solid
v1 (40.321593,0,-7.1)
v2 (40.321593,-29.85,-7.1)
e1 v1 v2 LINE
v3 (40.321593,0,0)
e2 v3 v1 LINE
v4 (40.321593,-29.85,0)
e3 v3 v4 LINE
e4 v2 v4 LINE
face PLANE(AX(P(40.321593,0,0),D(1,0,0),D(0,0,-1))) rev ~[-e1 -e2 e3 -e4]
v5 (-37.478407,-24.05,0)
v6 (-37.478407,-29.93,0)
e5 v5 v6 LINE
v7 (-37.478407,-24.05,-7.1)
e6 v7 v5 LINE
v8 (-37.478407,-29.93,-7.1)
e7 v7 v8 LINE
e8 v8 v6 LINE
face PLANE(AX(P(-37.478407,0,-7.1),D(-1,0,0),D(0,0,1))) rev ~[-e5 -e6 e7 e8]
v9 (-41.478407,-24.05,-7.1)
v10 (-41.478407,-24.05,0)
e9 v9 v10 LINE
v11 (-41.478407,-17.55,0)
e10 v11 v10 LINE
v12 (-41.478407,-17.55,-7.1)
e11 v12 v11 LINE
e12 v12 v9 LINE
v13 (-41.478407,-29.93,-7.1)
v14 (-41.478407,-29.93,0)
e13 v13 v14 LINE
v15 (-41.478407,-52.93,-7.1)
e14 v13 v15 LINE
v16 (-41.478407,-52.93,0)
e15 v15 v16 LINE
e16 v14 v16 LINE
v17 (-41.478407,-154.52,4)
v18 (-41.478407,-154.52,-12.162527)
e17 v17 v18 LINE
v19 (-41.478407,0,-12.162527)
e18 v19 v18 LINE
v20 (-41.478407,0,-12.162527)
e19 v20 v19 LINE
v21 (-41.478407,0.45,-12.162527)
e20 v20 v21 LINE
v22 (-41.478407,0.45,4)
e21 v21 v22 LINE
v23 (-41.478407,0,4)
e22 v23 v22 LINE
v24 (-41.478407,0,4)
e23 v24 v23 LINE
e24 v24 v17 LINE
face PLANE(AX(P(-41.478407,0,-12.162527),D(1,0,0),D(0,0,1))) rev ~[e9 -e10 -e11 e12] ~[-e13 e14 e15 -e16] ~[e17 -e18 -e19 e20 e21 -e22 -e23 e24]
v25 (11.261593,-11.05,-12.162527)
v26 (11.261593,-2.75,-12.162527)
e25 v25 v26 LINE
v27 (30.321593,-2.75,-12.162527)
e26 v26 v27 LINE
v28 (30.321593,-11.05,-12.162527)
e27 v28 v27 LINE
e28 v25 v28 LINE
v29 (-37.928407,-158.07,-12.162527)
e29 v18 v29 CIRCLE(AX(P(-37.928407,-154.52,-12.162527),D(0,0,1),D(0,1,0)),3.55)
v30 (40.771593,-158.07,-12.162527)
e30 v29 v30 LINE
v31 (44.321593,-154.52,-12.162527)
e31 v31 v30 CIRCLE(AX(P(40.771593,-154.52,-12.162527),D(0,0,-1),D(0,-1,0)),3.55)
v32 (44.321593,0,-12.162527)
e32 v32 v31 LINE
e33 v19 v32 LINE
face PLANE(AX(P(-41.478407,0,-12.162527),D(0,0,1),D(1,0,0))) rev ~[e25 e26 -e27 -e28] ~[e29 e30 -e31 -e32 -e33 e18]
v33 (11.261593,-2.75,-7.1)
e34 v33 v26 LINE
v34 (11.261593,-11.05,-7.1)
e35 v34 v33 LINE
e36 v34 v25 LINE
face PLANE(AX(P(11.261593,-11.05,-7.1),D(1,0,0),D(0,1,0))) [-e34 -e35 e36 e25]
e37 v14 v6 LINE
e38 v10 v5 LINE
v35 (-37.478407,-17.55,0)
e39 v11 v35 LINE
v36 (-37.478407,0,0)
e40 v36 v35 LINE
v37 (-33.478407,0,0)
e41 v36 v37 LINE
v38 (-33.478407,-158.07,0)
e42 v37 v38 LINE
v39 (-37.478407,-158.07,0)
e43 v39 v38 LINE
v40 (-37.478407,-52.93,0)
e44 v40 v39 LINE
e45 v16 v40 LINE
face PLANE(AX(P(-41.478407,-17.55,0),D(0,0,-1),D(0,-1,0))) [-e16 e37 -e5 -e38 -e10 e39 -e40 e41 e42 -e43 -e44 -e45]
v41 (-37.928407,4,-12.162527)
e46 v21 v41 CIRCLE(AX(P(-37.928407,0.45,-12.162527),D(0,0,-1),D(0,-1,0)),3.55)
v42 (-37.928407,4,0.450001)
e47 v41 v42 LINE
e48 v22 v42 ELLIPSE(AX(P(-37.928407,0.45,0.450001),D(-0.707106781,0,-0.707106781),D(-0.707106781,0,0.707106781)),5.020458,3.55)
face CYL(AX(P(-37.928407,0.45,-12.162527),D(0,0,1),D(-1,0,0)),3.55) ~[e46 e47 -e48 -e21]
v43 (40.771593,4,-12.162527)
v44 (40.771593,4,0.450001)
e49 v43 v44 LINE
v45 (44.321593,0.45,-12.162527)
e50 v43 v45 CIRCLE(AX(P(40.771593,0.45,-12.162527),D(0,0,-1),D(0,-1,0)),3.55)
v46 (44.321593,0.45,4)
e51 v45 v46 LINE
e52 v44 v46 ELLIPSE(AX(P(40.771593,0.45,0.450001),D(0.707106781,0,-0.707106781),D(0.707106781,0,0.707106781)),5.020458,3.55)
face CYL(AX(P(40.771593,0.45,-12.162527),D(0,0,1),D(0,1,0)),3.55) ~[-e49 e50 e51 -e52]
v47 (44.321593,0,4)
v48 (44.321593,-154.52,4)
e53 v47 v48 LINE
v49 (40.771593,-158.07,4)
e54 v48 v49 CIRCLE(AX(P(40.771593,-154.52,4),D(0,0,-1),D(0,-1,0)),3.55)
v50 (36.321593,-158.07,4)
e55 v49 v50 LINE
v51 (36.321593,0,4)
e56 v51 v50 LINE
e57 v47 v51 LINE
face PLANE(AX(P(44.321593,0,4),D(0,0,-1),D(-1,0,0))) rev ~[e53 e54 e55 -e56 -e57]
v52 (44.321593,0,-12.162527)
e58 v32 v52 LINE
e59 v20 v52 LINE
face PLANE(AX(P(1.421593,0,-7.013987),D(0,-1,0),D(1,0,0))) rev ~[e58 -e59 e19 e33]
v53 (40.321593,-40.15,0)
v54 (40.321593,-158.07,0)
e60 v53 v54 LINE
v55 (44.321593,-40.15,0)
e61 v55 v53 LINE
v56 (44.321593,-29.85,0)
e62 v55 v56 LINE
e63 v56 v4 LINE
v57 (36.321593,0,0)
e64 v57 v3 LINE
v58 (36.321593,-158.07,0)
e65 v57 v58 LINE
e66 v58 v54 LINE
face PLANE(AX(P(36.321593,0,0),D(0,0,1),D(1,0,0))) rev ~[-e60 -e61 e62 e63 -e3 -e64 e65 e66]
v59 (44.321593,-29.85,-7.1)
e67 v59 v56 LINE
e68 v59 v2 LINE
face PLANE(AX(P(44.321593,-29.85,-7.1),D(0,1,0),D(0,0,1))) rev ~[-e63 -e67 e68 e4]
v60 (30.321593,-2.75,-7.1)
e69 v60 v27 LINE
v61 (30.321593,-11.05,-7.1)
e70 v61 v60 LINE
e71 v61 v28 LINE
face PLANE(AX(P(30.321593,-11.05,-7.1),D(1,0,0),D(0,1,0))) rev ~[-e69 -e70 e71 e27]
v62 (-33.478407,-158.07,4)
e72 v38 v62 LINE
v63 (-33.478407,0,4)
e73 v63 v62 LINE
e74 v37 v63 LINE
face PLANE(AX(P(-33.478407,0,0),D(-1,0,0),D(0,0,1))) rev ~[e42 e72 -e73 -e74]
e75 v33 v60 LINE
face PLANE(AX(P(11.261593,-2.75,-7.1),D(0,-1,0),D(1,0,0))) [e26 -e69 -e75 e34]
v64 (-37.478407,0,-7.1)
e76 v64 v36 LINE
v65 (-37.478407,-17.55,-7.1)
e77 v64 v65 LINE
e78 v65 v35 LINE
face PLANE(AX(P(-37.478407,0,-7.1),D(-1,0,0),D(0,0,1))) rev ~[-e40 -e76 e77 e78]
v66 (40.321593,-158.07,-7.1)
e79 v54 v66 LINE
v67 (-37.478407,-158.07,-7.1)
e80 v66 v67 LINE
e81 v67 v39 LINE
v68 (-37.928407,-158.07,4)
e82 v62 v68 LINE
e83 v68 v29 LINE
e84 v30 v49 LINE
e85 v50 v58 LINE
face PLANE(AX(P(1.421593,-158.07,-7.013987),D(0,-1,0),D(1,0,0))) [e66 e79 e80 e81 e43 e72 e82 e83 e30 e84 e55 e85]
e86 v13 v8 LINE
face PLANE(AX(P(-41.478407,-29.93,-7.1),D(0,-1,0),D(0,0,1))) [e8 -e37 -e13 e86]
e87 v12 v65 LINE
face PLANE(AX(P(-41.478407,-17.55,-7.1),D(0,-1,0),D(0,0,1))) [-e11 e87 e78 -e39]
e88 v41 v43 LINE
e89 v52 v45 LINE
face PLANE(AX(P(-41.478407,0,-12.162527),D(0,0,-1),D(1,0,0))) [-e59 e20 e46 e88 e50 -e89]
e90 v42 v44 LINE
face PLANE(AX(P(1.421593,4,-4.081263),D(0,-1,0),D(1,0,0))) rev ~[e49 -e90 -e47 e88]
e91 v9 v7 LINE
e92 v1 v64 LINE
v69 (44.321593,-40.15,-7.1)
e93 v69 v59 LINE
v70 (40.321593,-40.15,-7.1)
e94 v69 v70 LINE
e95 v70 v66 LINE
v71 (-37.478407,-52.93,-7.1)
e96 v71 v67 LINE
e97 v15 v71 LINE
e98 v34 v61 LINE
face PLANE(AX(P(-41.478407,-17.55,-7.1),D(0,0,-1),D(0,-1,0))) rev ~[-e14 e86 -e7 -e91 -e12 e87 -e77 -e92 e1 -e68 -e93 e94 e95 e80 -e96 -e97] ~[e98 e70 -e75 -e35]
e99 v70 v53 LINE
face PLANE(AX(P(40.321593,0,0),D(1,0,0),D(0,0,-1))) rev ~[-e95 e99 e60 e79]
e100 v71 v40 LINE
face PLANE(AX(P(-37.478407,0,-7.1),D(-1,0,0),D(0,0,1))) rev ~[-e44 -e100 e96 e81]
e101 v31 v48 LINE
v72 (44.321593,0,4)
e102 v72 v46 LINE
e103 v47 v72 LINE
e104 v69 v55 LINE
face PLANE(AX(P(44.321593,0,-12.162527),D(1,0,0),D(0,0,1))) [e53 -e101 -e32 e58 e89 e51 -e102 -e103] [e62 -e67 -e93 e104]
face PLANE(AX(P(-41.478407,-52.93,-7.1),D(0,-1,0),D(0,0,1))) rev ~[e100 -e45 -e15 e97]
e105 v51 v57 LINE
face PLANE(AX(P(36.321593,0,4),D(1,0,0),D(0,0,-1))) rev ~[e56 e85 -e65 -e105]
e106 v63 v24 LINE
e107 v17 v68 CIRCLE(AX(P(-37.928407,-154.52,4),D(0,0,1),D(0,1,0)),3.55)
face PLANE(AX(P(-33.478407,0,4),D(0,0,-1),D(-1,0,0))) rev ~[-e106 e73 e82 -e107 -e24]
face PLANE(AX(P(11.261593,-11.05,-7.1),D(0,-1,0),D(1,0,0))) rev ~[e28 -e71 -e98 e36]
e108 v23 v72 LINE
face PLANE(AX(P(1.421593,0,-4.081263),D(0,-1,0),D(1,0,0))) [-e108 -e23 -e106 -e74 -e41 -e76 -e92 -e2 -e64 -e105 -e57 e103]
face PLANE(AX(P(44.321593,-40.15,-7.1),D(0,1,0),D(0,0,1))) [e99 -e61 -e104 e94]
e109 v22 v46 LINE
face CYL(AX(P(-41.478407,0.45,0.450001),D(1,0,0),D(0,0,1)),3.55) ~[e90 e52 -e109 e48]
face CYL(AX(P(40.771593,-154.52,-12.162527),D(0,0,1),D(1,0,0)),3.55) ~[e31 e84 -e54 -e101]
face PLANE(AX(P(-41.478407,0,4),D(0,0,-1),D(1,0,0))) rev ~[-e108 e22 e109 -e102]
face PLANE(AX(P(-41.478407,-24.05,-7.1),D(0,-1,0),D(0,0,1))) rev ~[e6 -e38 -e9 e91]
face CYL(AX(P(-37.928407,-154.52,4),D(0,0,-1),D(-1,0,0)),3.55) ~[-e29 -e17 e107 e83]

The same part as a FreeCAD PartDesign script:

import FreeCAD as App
import Part
import Sketcher

V = App.Vector


def edges_at(feature, points):
    """Names of the edges that pass closest to the given points."""
    edges = feature.Shape.Edges
    near = lambda p: min(range(len(edges)), key=lambda i: edges[i].distToShape(Part.Vertex(*p))[0])
    return sorted({f"Edge{near(p) + 1}" for p in points})

doc = App.newDocument("Part")
body = doc.addObject("PartDesign::Body", "Body")

# Sketch on XZ plane
sketch1 = body.newObject("Sketcher::SketchObject", "Sketch")
sketch1.AttachmentSupport = (doc.getObject("XZ_Plane"), [""])
sketch1.MapMode = "FlatFace"
sketch1.addGeometry(Part.LineSegment(V(-41.5, 4, 0), V(-41.5, -12.2, 0)), False)
sketch1.addGeometry(Part.LineSegment(V(-41.5, -12.2, 0), V(44.3, -12.2, 0)), False)
sketch1.addGeometry(Part.LineSegment(V(44.3, -12.2, 0), V(44.3, 4, 0)), False)
sketch1.addGeometry(Part.LineSegment(V(44.3, 4, 0), V(36.3, 4, 0)), False)
sketch1.addGeometry(Part.LineSegment(V(36.3, 4, 0), V(36.3, 0, 0)), False)
sketch1.addGeometry(Part.LineSegment(V(36.3, 0, 0), V(40.3, 0, 0)), False)
sketch1.addGeometry(Part.LineSegment(V(40.3, 0, 0), V(40.3, -7.1, 0)), False)
sketch1.addGeometry(Part.LineSegment(V(40.3, -7.1, 0), V(-37.5, -7.1, 0)), False)
sketch1.addGeometry(Part.LineSegment(V(-37.5, -7.1, 0), V(-37.5, 0, 0)), False)
sketch1.addGeometry(Part.LineSegment(V(-37.5, 0, 0), V(-33.5, 0, 0)), False)
sketch1.addGeometry(Part.LineSegment(V(-33.5, 0, 0), V(-33.5, 4, 0)), False)
sketch1.addGeometry(Part.LineSegment(V(-33.5, 4, 0), V(-41.5, 4, 0)), False)
sketch1.addConstraint(Sketcher.Constraint("Coincident", 0, 2, 1, 1))
sketch1.addConstraint(Sketcher.Constraint("Coincident", 1, 2, 2, 1))
sketch1.addConstraint(Sketcher.Constraint("Coincident", 2, 2, 3, 1))
sketch1.addConstraint(Sketcher.Constraint("Coincident", 3, 2, 4, 1))
sketch1.addConstraint(Sketcher.Constraint("Coincident", 4, 2, 5, 1))
sketch1.addConstraint(Sketcher.Constraint("Coincident", 5, 2, 6, 1))
sketch1.addConstraint(Sketcher.Constraint("Coincident", 6, 2, 7, 1))
sketch1.addConstraint(Sketcher.Constraint("Coincident", 7, 2, 8, 1))
sketch1.addConstraint(Sketcher.Constraint("Coincident", 8, 2, 9, 1))
sketch1.addConstraint(Sketcher.Constraint("Coincident", 9, 2, 10, 1))
sketch1.addConstraint(Sketcher.Constraint("Coincident", 10, 2, 11, 1))
sketch1.addConstraint(Sketcher.Constraint("Coincident", 11, 2, 0, 1))
sketch1.addConstraint(Sketcher.Constraint("Vertical", 0))
sketch1.addConstraint(Sketcher.Constraint("Horizontal", 1))
sketch1.addConstraint(Sketcher.Constraint("Vertical", 2))
sketch1.addConstraint(Sketcher.Constraint("Horizontal", 3))
sketch1.addConstraint(Sketcher.Constraint("Vertical", 4))
sketch1.addConstraint(Sketcher.Constraint("Horizontal", 5))
sketch1.addConstraint(Sketcher.Constraint("Vertical", 6))
sketch1.addConstraint(Sketcher.Constraint("Horizontal", 7))
sketch1.addConstraint(Sketcher.Constraint("Vertical", 8))
sketch1.addConstraint(Sketcher.Constraint("Horizontal", 9))
sketch1.addConstraint(Sketcher.Constraint("Vertical", 10))
sketch1.addConstraint(Sketcher.Constraint("Horizontal", 11))
sketch1.addConstraint(Sketcher.Constraint("PointOnObject", 4, 2, -1))
sketch1.addConstraint(Sketcher.Constraint("PointOnObject", 8, 2, -1))
sketch1.addConstraint(Sketcher.Constraint("Horizontal", 3, 2, 10, 2))
sketch1.addConstraint(Sketcher.Constraint("Equal", 5, 9))
sketch1.addConstraint(Sketcher.Constraint("Equal", 3, 11))
sketch1.addConstraint(Sketcher.Constraint("Equal", 9, 4))
sketch1.addConstraint(Sketcher.Constraint("DistanceX", 3, 2, 3, 1, 8.0))
sketch1.addConstraint(Sketcher.Constraint("DistanceX", 5, 1, 5, 2, 4.0))
sketch1.addConstraint(Sketcher.Constraint("DistanceX", 1, 1, 1, 2, 85.8))
sketch1.addConstraint(Sketcher.Constraint("DistanceY", 6, 2, 6, 1, 7.1))
sketch1.addConstraint(Sketcher.Constraint("DistanceY", 0, 2, 0, 1, 16.162527))
sketch1.addConstraint(Sketcher.Constraint("DistanceX", 0, 2, -1, 1, 41.478407))
pad1 = body.newObject("PartDesign::Pad", "Pad")
pad1.Profile = sketch1
pad1.Length = 158.07

# Sketch on XZ plane
sketch2 = body.newObject("Sketcher::SketchObject", "Sketch001")
sketch2.AttachmentSupport = (doc.getObject("XZ_Plane"), [""])
sketch2.MapMode = "FlatFace"
sketch2.addGeometry(Part.LineSegment(V(-41, 4, 0), V(-41, -12, 0)), False)
sketch2.addGeometry(Part.LineSegment(V(-41, -12, 0), V(44, -12, 0)), False)
sketch2.addGeometry(Part.LineSegment(V(44, -12, 0), V(44, 4, 0)), False)
sketch2.addGeometry(Part.LineSegment(V(44, 4, 0), V(-41, 4, 0)), False)
sketch2.addConstraint(Sketcher.Constraint("Coincident", 0, 2, 1, 1))
sketch2.addConstraint(Sketcher.Constraint("Coincident", 1, 2, 2, 1))
sketch2.addConstraint(Sketcher.Constraint("Coincident", 2, 2, 3, 1))
sketch2.addConstraint(Sketcher.Constraint("Coincident", 3, 2, 0, 1))
sketch2.addConstraint(Sketcher.Constraint("Vertical", 0))
sketch2.addConstraint(Sketcher.Constraint("Horizontal", 1))
sketch2.addConstraint(Sketcher.Constraint("Vertical", 2))
sketch2.addConstraint(Sketcher.Constraint("Horizontal", 3))
sketch2.addConstraint(Sketcher.Constraint("DistanceX", 1, 1, 1, 2, 85.8))
sketch2.addConstraint(Sketcher.Constraint("DistanceY", -1, 1, 2, 2, 4.0))
sketch2.addConstraint(Sketcher.Constraint("DistanceY", 0, 2, 0, 1, 16.162527))
sketch2.addConstraint(Sketcher.Constraint("DistanceX", 0, 2, -1, 1, 41.478407))
pad2 = body.newObject("PartDesign::Pad", "Pad001")
pad2.Profile = sketch2
pad2.Length = 4
pad2.Reversed = True
doc.recompute()

fillet = body.newObject("PartDesign::Fillet", "Fillet")
fillet.Base = (pad2, edges_at(pad2, [
    (-41.478, 4, -4.081),
    (44.322, 4, -4.081),
    (1.422, 4, 4),
    (44.322, -158.07, -4.081),
    (-41.478, -158.07, -4.081),
]))
fillet.Radius = 3.55

# Sketch on XY plane
sketch3 = body.newObject("Sketcher::SketchObject", "Sketch002")
sketch3.AttachmentSupport = (doc.getObject("XY_Plane"), [""])
sketch3.MapMode = "FlatFace"
sketch3.AttachmentOffset = App.Placement(V(0, 0, -7.1), App.Rotation())
sketch3.addGeometry(Part.LineSegment(V(11, -3, 0), V(11, -11, 0)), False)
sketch3.addGeometry(Part.LineSegment(V(11, -11, 0), V(30, -11, 0)), False)
sketch3.addGeometry(Part.LineSegment(V(30, -11, 0), V(30, -3, 0)), False)
sketch3.addGeometry(Part.LineSegment(V(30, -3, 0), V(11, -3, 0)), False)
sketch3.addConstraint(Sketcher.Constraint("Coincident", 0, 2, 1, 1))
sketch3.addConstraint(Sketcher.Constraint("Coincident", 1, 2, 2, 1))
sketch3.addConstraint(Sketcher.Constraint("Coincident", 2, 2, 3, 1))
sketch3.addConstraint(Sketcher.Constraint("Coincident", 3, 2, 0, 1))
sketch3.addConstraint(Sketcher.Constraint("Vertical", 0))
sketch3.addConstraint(Sketcher.Constraint("Horizontal", 1))
sketch3.addConstraint(Sketcher.Constraint("Vertical", 2))
sketch3.addConstraint(Sketcher.Constraint("Horizontal", 3))
sketch3.addConstraint(Sketcher.Constraint("DistanceY", 0, 2, 0, 1, 8.3))
sketch3.addConstraint(Sketcher.Constraint("DistanceX", 1, 1, 1, 2, 19.06))
sketch3.addConstraint(Sketcher.Constraint("DistanceY", 0, 2, -1, 1, 11.05))
sketch3.addConstraint(Sketcher.Constraint("DistanceX", -1, 1, 0, 2, 11.261593))
pocket1 = body.newObject("PartDesign::Pocket", "Pocket")
pocket1.Profile = sketch3
pocket1.Length = 10

# Sketch on YZ plane
sketch4 = body.newObject("Sketcher::SketchObject", "Sketch003")
sketch4.AttachmentSupport = (doc.getObject("YZ_Plane"), [""])
sketch4.MapMode = "FlatFace"
sketch4.AttachmentOffset = App.Placement(V(0, 0, -41.478407), App.Rotation())
sketch4.addGeometry(Part.LineSegment(V(-18, 0, 0), V(-18, -7, 0)), False)
sketch4.addGeometry(Part.LineSegment(V(-18, -7, 0), V(-24, -7, 0)), False)
sketch4.addGeometry(Part.LineSegment(V(-24, -7, 0), V(-24, 0, 0)), False)
sketch4.addGeometry(Part.LineSegment(V(-24, 0, 0), V(-18, 0, 0)), False)
sketch4.addGeometry(Part.LineSegment(V(-30, 0, 0), V(-30, -7, 0)), False)
sketch4.addGeometry(Part.LineSegment(V(-30, -7, 0), V(-53, -7, 0)), False)
sketch4.addGeometry(Part.LineSegment(V(-53, -7, 0), V(-53, 0, 0)), False)
sketch4.addGeometry(Part.LineSegment(V(-53, 0, 0), V(-30, 0, 0)), False)
sketch4.addConstraint(Sketcher.Constraint("Coincident", 0, 2, 1, 1))
sketch4.addConstraint(Sketcher.Constraint("Coincident", 1, 2, 2, 1))
sketch4.addConstraint(Sketcher.Constraint("Coincident", 2, 2, 3, 1))
sketch4.addConstraint(Sketcher.Constraint("Coincident", 3, 2, 0, 1))
sketch4.addConstraint(Sketcher.Constraint("Coincident", 4, 2, 5, 1))
sketch4.addConstraint(Sketcher.Constraint("Coincident", 5, 2, 6, 1))
sketch4.addConstraint(Sketcher.Constraint("Coincident", 6, 2, 7, 1))
sketch4.addConstraint(Sketcher.Constraint("Coincident", 7, 2, 4, 1))
sketch4.addConstraint(Sketcher.Constraint("Vertical", 0))
sketch4.addConstraint(Sketcher.Constraint("Horizontal", 1))
sketch4.addConstraint(Sketcher.Constraint("Vertical", 2))
sketch4.addConstraint(Sketcher.Constraint("Horizontal", 3))
sketch4.addConstraint(Sketcher.Constraint("Vertical", 4))
sketch4.addConstraint(Sketcher.Constraint("Horizontal", 5))
sketch4.addConstraint(Sketcher.Constraint("Vertical", 6))
sketch4.addConstraint(Sketcher.Constraint("Horizontal", 7))
sketch4.addConstraint(Sketcher.Constraint("PointOnObject", 2, 2, -1))
sketch4.addConstraint(Sketcher.Constraint("PointOnObject", 6, 2, -1))
sketch4.addConstraint(Sketcher.Constraint("Horizontal", 1, 2, 4, 2))
sketch4.addConstraint(Sketcher.Constraint("DistanceX", 5, 2, 5, 1, 23.0))
sketch4.addConstraint(Sketcher.Constraint("DistanceX", 1, 2, 1, 1, 6.5))
sketch4.addConstraint(Sketcher.Constraint("DistanceY", 0, 2, 0, 1, 7.1))
sketch4.addConstraint(Sketcher.Constraint("DistanceX", 0, 2, -1, 1, 17.55))
sketch4.addConstraint(Sketcher.Constraint("DistanceX", 4, 2, -1, 1, 29.93))
pocket2 = body.newObject("PartDesign::Pocket", "Pocket001")
pocket2.Profile = sketch4
pocket2.Length = 4
pocket2.Reversed = True

# Sketch on YZ plane
sketch5 = body.newObject("Sketcher::SketchObject", "Sketch004")
sketch5.AttachmentSupport = (doc.getObject("YZ_Plane"), [""])
sketch5.MapMode = "FlatFace"
sketch5.AttachmentOffset = App.Placement(V(0, 0, 44.321593), App.Rotation())
sketch5.addGeometry(Part.LineSegment(V(-40, 0, 0), V(-40, -7, 0)), False)
sketch5.addGeometry(Part.LineSegment(V(-40, -7, 0), V(-30, -7, 0)), False)
sketch5.addGeometry(Part.LineSegment(V(-30, -7, 0), V(-30, 0, 0)), False)
sketch5.addGeometry(Part.LineSegment(V(-30, 0, 0), V(-40, 0, 0)), False)
sketch5.addConstraint(Sketcher.Constraint("Coincident", 0, 2, 1, 1))
sketch5.addConstraint(Sketcher.Constraint("Coincident", 1, 2, 2, 1))
sketch5.addConstraint(Sketcher.Constraint("Coincident", 2, 2, 3, 1))
sketch5.addConstraint(Sketcher.Constraint("Coincident", 3, 2, 0, 1))
sketch5.addConstraint(Sketcher.Constraint("Vertical", 0))
sketch5.addConstraint(Sketcher.Constraint("Horizontal", 1))
sketch5.addConstraint(Sketcher.Constraint("Vertical", 2))
sketch5.addConstraint(Sketcher.Constraint("Horizontal", 3))
sketch5.addConstraint(Sketcher.Constraint("PointOnObject", 2, 2, -1))
sketch5.addConstraint(Sketcher.Constraint("DistanceX", 1, 1, 1, 2, 10.3))
sketch5.addConstraint(Sketcher.Constraint("DistanceY", 0, 2, 0, 1, 7.1))
sketch5.addConstraint(Sketcher.Constraint("DistanceX", 0, 2, -1, 1, 40.15))
pocket3 = body.newObject("PartDesign::Pocket", "Pocket002")
pocket3.Profile = sketch5
pocket3.Length = 4

doc.recompute()
